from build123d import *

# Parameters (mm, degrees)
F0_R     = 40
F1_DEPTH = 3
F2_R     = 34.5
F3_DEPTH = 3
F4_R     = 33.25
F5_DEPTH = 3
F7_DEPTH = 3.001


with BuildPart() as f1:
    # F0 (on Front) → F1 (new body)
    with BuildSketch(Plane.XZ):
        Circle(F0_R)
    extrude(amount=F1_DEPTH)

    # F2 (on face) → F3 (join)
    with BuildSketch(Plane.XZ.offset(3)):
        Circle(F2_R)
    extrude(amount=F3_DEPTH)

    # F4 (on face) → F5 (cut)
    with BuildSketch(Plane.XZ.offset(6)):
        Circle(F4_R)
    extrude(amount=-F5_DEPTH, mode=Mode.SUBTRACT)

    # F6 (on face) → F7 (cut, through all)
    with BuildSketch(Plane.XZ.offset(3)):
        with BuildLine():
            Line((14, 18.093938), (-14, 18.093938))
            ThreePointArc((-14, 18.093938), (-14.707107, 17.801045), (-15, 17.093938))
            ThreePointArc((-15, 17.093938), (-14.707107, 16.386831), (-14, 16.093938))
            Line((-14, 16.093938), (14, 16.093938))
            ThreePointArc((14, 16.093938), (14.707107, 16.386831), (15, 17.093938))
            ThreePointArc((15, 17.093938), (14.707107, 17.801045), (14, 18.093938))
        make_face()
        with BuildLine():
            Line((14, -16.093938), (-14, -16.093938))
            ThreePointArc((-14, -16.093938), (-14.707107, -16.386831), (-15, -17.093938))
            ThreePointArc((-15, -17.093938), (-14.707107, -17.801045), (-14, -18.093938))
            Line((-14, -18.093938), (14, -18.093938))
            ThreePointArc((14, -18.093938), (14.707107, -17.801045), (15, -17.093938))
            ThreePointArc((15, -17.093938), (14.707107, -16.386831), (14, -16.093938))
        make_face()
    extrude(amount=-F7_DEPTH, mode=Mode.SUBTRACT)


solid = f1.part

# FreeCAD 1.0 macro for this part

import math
import FreeCAD as App
import Part
import Sketcher
from FreeCAD import Vector
Q = App.Units.Quantity

doc = App.newDocument("Part")
body = doc.addObject("PartDesign::Body", "Body")

# Sketch on XZ plane
sketch1 = doc.addObject("Sketcher::SketchObject", "Sketch")
body.addObject(sketch1)
sketch1.AttachmentSupport = (doc.XZ_Plane, [""])
sketch1.MapMode = "FlatFace"
sketch1.addGeometry(Part.Circle(Vector(0, 0, 0), Vector(0, 0, 1), 40), False)
sketch1.addConstraint(Sketcher.Constraint("Coincident", 0, 3, -1, 1))
sketch1.addConstraint(Sketcher.Constraint("Diameter", 0, Q("80 mm")))
pad1 = doc.addObject("PartDesign::Pad", "Pad")
body.addObject(pad1)
pad1.Profile = sketch1
pad1.Length = 3

# Sketch on XZ plane
sketch2 = doc.addObject("Sketcher::SketchObject", "Sketch001")
body.addObject(sketch2)
sketch2.AttachmentSupport = (doc.XZ_Plane, [""])
sketch2.MapMode = "FlatFace"
sketch2.AttachmentOffset = App.Placement(Vector(0, 0, 3), App.Rotation())
sketch2.addGeometry(Part.Circle(Vector(0, 0, 0), Vector(0, 0, 1), 34), False)
sketch2.addConstraint(Sketcher.Constraint("Coincident", 0, 3, -1, 1))
sketch2.addConstraint(Sketcher.Constraint("Diameter", 0, Q("69 mm")))
pad2 = doc.addObject("PartDesign::Pad", "Pad001")
body.addObject(pad2)
pad2.Profile = sketch2
pad2.Length = 3

# Sketch on XZ plane
sketch3 = doc.addObject("Sketcher::SketchObject", "Sketch002")
body.addObject(sketch3)
sketch3.AttachmentSupport = (doc.XZ_Plane, [""])
sketch3.MapMode = "FlatFace"
sketch3.AttachmentOffset = App.Placement(Vector(0, 0, 6), App.Rotation())
sketch3.addGeometry(Part.Circle(Vector(0, 0, 0), Vector(0, 0, 1), 33), False)
sketch3.addConstraint(Sketcher.Constraint("Coincident", 0, 3, -1, 1))
sketch3.addConstraint(Sketcher.Constraint("Diameter", 0, Q("66.5 mm")))
pocket1 = doc.addObject("PartDesign::Pocket", "Pocket")
body.addObject(pocket1)
pocket1.Profile = sketch3
pocket1.Length = 3

# Sketch on XZ plane
sketch4 = doc.addObject("Sketcher::SketchObject", "Sketch003")
body.addObject(sketch4)
sketch4.AttachmentSupport = (doc.XZ_Plane, [""])
sketch4.MapMode = "FlatFace"
sketch4.AttachmentOffset = App.Placement(Vector(0, 0, 3), App.Rotation())
sketch4.addGeometry(Part.LineSegment(Vector(14, 18.1, 0), Vector(-14, 18.1, 0)), False)
sketch4.addGeometry(Part.ArcOfCircle(Part.Circle(Vector(-14, 17.1, 0), Vector(0, 0, 1), 1), math.radians(90), math.radians(180)), False)
sketch4.addGeometry(Part.ArcOfCircle(Part.Circle(Vector(-14, 17.1, 0), Vector(0, 0, 1), 1), math.radians(180), math.radians(270)), False)
sketch4.addGeometry(Part.LineSegment(Vector(-14, 16.1, 0), Vector(14, 16.1, 0)), False)
sketch4.addGeometry(Part.ArcOfCircle(Part.Circle(Vector(14, 17.1, 0), Vector(0, 0, 1), 1), math.radians(-90), math.radians(0)), False)
sketch4.addGeometry(Part.ArcOfCircle(Part.Circle(Vector(14, 17.1, 0), Vector(0, 0, 1), 1), math.radians(0), math.radians(90)), False)
sketch4.addGeometry(Part.LineSegment(Vector(14, -16.1, 0), Vector(-14, -16.1, 0)), False)
sketch4.addGeometry(Part.ArcOfCircle(Part.Circle(Vector(-14, -17.1, 0), Vector(0, 0, 1), 1), math.radians(90), math.radians(180)), False)
sketch4.addGeometry(Part.ArcOfCircle(Part.Circle(Vector(-14, -17.1, 0), Vector(0, 0, 1), 1), math.radians(180), math.radians(270)), False)
sketch4.addGeometry(Part.LineSegment(Vector(-14, -18.1, 0), Vector(14, -18.1, 0)), False)
sketch4.addGeometry(Part.ArcOfCircle(Part.Circle(Vector(14, -17.1, 0), Vector(0, 0, 1), 1), math.radians(-90), math.radians(0)), False)
sketch4.addGeometry(Part.ArcOfCircle(Part.Circle(Vector(14, -17.1, 0), Vector(0, 0, 1), 1), math.radians(0), math.radians(90)), False)
sketch4.addConstraint(Sketcher.Constraint("Tangent", 0, 2, 1, 1))
sketch4.addConstraint(Sketcher.Constraint("Tangent", 1, 2, 2, 1))
sketch4.addConstraint(Sketcher.Constraint("Tangent", 2, 2, 3, 1))
sketch4.addConstraint(Sketcher.Constraint("Tangent", 3, 2, 4, 1))
sketch4.addConstraint(Sketcher.Constraint("Tangent", 4, 2, 5, 1))
sketch4.addConstraint(Sketcher.Constraint("Tangent", 5, 2, 0, 1))
sketch4.addConstraint(Sketcher.Constraint("Tangent", 6, 2, 7, 1))
sketch4.addConstraint(Sketcher.Constraint("Tangent", 7, 2, 8, 1))
sketch4.addConstraint(Sketcher.Constraint("Tangent", 8, 2, 9, 1))
sketch4.addConstraint(Sketcher.Constraint("Tangent", 9, 2, 10, 1))
sketch4.addConstraint(Sketcher.Constraint("Tangent", 10, 2, 11, 1))
sketch4.addConstraint(Sketcher.Constraint("Tangent", 11, 2, 6, 1))
sketch4.addConstraint(Sketcher.Constraint("Horizontal", 0))
sketch4.addConstraint(Sketcher.Constraint("Horizontal", 3))
sketch4.addConstraint(Sketcher.Constraint("Horizontal", 6))
sketch4.addConstraint(Sketcher.Constraint("Horizontal", 9))
sketch4.addConstraint(Sketcher.Constraint("Equal", 1, 2))
sketch4.addConstraint(Sketcher.Constraint("Equal", 2, 4))
sketch4.addConstraint(Sketcher.Constraint("Equal", 5, 7))
sketch4.addConstraint(Sketcher.Constraint("Equal", 7, 8))
sketch4.addConstraint(Sketcher.Constraint("Equal", 8, 10))
sketch4.addConstraint(Sketcher.Constraint("Symmetric", 4, 3, 7, 3, -1, 1))
sketch4.addConstraint(Sketcher.Constraint("Symmetric", 1, 2, 10, 2, -1, 1))
sketch4.addConstraint(Sketcher.Constraint("Symmetric", 1, 2, 4, 2, -2))
sketch4.addConstraint(Sketcher.Constraint("Horizontal", 5, 3, 1, 2))
sketch4.addConstraint(Sketcher.Constraint("Horizontal", 11, 3, 7, 2))
sketch4.addConstraint(Sketcher.Constraint("Radius", 1, Q("0.999999 mm")))
sketch4.addConstraint(Sketcher.Constraint("DistanceX", 0, 2, 0, 1, Q("28 mm")))
sketch4.addConstraint(Sketcher.Constraint("DistanceY", -1, 1, 1, 3, Q("17.093939 mm")))
pocket2 = doc.addObject("PartDesign::Pocket", "Pocket001")
body.addObject(pocket2)
pocket2.Profile = sketch4
pocket2.Type = "ThroughAll"

doc.recompute()
